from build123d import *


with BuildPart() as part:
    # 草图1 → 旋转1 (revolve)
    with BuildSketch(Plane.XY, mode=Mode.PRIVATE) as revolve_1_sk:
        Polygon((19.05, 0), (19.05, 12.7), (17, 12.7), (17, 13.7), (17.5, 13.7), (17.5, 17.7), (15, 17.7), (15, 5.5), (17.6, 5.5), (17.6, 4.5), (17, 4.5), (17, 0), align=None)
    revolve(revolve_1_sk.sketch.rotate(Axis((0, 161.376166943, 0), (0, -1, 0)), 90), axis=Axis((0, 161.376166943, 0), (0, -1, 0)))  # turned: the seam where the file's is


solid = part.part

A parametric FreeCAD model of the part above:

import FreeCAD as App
import Part
import Sketcher
from FreeCAD import Vector
Q = App.Units.Quantity


def add_polygon(sketch, points):
    """Adds a closed chain of lines whose ends are joined by coincident constraints."""
    first, n = sketch.GeometryCount, len(points)
    for a, b in zip(points, points[1:] + points[:1]):
        sketch.addGeometry(Part.LineSegment(App.Vector(*a, 0), App.Vector(*b, 0)), False)
    for i in range(n):
        sketch.addConstraint(Sketcher.Constraint("Coincident", first + i, 2, first + (i + 1) % n, 1))

doc = App.newDocument("Part")
params = doc.addObject("Spreadsheet::Sheet", "Params")
for row, (alias, value) in enumerate([
    ("sketch1_height", "1 mm"),
    ("sketch1_height2", "4 mm"),
    ("sketch1_width", "0.5 mm"),
    ("sketch1_width2", "2.5 mm"),
    ("sketch1_width3", "2.6 mm"),
    ("revolution_angle", "360 deg"),
], start=1):
    params.set(f"A{row}", alias)
    params.set(f"B{row}", "=" + value)
    params.setAlias(f"B{row}", alias)

body = doc.addObject("PartDesign::Body", "Body")

# Sketch on XY plane
sketch1 = doc.addObject("Sketcher::SketchObject", "Sketch")
body.addObject(sketch1)
sketch1.AttachmentSupport = (doc.XY_Plane, [""])
sketch1.MapMode = "FlatFace"
add_polygon(sketch1, [(19.1, 0), (19.1, 12.7), (17, 12.7), (17, 13.7), (17.5, 13.7), (17.5, 17.7), (15, 17.7), (15, 5.5), (17.6, 5.5), (17.6, 4.5), (17, 4.5), (17, 0)])  # lines 0-11
sketch1.addConstraint(Sketcher.Constraint("Vertical", 0))
sketch1.addConstraint(Sketcher.Constraint("Horizontal", 1))
sketch1.addConstraint(Sketcher.Constraint("Vertical", 2))
sketch1.addConstraint(Sketcher.Constraint("Horizontal", 3))
sketch1.addConstraint(Sketcher.Constraint("Vertical", 4))
sketch1.addConstraint(Sketcher.Constraint("Horizontal", 5))
sketch1.addConstraint(Sketcher.Constraint("Vertical", 6))
sketch1.addConstraint(Sketcher.Constraint("Horizontal", 7))
sketch1.addConstraint(Sketcher.Constraint("Vertical", 8))
sketch1.addConstraint(Sketcher.Constraint("Horizontal", 9))
sketch1.addConstraint(Sketcher.Constraint("Vertical", 10))
sketch1.addConstraint(Sketcher.Constraint("Horizontal", 11))
sketch1.addConstraint(Sketcher.Constraint("PointOnObject", 10, 2, -1))
sketch1.addConstraint(Sketcher.Constraint("Vertical", 2, 2, 9, 2))
sketch1.addConstraint(Sketcher.Constraint("Equal", 2, 8))
sketch1.addConstraint(Sketcher.Constraint("DistanceY", 2, 1, 2, 2, Q("1 mm")))
sketch1.addConstraint(Sketcher.Constraint("DistanceY", 4, 1, 4, 2, Q("4 mm")))
sketch1.addConstraint(Sketcher.Constraint("DistanceX", 3, 1, 3, 2, Q("0.5 mm")))
sketch1.addConstraint(Sketcher.Constraint("DistanceX", 5, 2, 5, 1, Q("2.5 mm")))
sketch1.addConstraint(Sketcher.Constraint("DistanceX", 7, 1, 7, 2, Q("2.6 mm")))
sketch1.addConstraint(Sketcher.Constraint("DistanceY", 0, 1, 0, 2, Q("12.7 mm")))
sketch1.addConstraint(Sketcher.Constraint("DistanceY", 6, 2, 6, 1, Q("12.2 mm")))
sketch1.addConstraint(Sketcher.Constraint("DistanceX", -1, 1, 1, 2, Q("17 mm")))
sketch1.addConstraint(Sketcher.Constraint("DistanceX", 1, 2, 1, 1, Q("2.05 mm")))
sketch1.setExpression("Constraints[27]", "Params.sketch1_height")
sketch1.setExpression("Constraints[28]", "Params.sketch1_height2")
sketch1.setExpression("Constraints[29]", "Params.sketch1_width")
sketch1.setExpression("Constraints[30]", "Params.sketch1_width2")
sketch1.setExpression("Constraints[31]", "Params.sketch1_width3")
revolution = doc.addObject("PartDesign::Revolution", "Revolution")
body.addObject(revolution)
revolution.Profile = sketch1
revolution.ReferenceAxis = (sketch1, ["V_Axis"])
revolution.setExpression("Angle", "Params.revolution_angle")

doc.recompute()
